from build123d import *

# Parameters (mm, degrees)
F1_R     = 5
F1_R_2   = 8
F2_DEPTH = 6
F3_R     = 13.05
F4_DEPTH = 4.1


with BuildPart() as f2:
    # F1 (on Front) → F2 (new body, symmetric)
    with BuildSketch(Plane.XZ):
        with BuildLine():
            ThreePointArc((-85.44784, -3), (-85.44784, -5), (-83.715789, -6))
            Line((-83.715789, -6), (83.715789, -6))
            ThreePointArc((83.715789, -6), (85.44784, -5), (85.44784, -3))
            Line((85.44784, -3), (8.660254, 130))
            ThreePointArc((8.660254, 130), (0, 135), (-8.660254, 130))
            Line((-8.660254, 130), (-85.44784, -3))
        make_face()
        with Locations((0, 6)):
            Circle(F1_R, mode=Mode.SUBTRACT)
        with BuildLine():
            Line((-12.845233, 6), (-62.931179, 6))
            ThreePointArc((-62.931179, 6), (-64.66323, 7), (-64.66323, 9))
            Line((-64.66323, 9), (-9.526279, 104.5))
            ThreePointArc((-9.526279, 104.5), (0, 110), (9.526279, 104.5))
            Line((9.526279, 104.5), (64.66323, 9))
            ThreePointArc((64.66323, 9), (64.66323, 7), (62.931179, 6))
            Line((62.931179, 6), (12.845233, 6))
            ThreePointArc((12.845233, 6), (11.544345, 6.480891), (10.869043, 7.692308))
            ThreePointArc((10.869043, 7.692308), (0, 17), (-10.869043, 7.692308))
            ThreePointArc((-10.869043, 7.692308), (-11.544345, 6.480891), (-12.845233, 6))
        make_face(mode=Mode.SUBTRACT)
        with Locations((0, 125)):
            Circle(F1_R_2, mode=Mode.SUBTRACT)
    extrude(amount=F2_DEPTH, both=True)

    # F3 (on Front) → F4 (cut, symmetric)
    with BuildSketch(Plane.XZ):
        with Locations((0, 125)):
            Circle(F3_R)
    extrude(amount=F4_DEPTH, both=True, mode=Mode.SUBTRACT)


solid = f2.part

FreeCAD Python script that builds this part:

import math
import FreeCAD as App
import Part
import Sketcher
from FreeCAD import Vector
Q = App.Units.Quantity

doc = App.newDocument("Part")
params = doc.addObject("Spreadsheet::Sheet", "Params")
for row, (alias, value) in enumerate([
    ("sketch1_diameter", "10 mm"),
    ("sketch1_diameter2", "16 mm"),
    ("sketch1_radius", "2 mm"),
    ("sketch1_radius2", "10 mm"),
    ("sketch1_radius3", "10.999999 mm"),
    ("pad1_length", "12 mm"),
    ("sketch2_diameter", "26.1 mm"),
    ("pocket1_length", "8.2 mm"),
], start=1):
    params.set(f"A{row}", alias)
    params.set(f"B{row}", "=" + value)
    params.setAlias(f"B{row}", alias)

body = doc.addObject("PartDesign::Body", "Body")

# Sketch on XZ plane
sketch1 = body.newObject("Sketcher::SketchObject", "Sketch")
sketch1.AttachmentSupport = (doc.getObject("XZ_Plane"), [""])
sketch1.MapMode = "FlatFace"
sketch1.addGeometry(Part.ArcOfCircle(Part.Circle(Vector(-83.7, -4, 0), Vector(0, 0, 1), 2), math.radians(150), math.radians(270)), False)
sketch1.addGeometry(Part.LineSegment(Vector(-83.7, -6, 0), Vector(83.7, -6, 0)), False)
sketch1.addGeometry(Part.ArcOfCircle(Part.Circle(Vector(83.7, -4, 0), Vector(0, 0, 1), 2), math.radians(-90), math.radians(30)), False)
sketch1.addGeometry(Part.LineSegment(Vector(85.4, -3, 0), Vector(8.7, 130, 0)), False)
sketch1.addGeometry(Part.ArcOfCircle(Part.Circle(Vector(0, 125, 0), Vector(0, 0, 1), 10), math.radians(30), math.radians(150)), False)
sketch1.addGeometry(Part.LineSegment(Vector(-8.7, 130, 0), Vector(-85.4, -3, 0)), False)
sketch1.addGeometry(Part.Circle(Vector(0, 6, 0), Vector(0, 0, 1), 5), False)
sketch1.addGeometry(Part.ArcOfCircle(Part.Circle(Vector(-12.8, 8, 0), Vector(0, 0, 1), 2), math.radians(-90), math.radians(-9)), False)
sketch1.addGeometry(Part.LineSegment(Vector(-12.8, 6, 0), Vector(-62.9, 6, 0)), False)
sketch1.addGeometry(Part.ArcOfCircle(Part.Circle(Vector(-62.9, 8, 0), Vector(0, 0, 1), 2), math.radians(150), math.radians(270)), False)
sketch1.addGeometry(Part.LineSegment(Vector(-64.7, 9, 0), Vector(-9.5, 104.5, 0)), False)
sketch1.addGeometry(Part.ArcOfCircle(Part.Circle(Vector(0, 99, 0), Vector(0, 0, 1), 11), math.radians(30), math.radians(150)), False)
sketch1.addGeometry(Part.LineSegment(Vector(9.5, 104.5, 0), Vector(64.7, 9, 0)), False)
sketch1.addGeometry(Part.ArcOfCircle(Part.Circle(Vector(62.9, 8, 0), Vector(0, 0, 1), 2), math.radians(-90), math.radians(30)), False)
sketch1.addGeometry(Part.LineSegment(Vector(62.9, 6, 0), Vector(12.8, 6, 0)), False)
sketch1.addGeometry(Part.ArcOfCircle(Part.Circle(Vector(12.8, 8, 0), Vector(0, 0, 1), 2), math.radians(-171), math.radians(-90)), False)
sketch1.addGeometry(Part.ArcOfCircle(Part.Circle(Vector(0, 6, 0), Vector(0, 0, 1), 11), math.radians(9), math.radians(171)), False)
sketch1.addGeometry(Part.Circle(Vector(0, 125, 0), Vector(0, 0, 1), 8), False)
sketch1.addConstraint(Sketcher.Constraint("Tangent", 0, 2, 1, 1))
sketch1.addConstraint(Sketcher.Constraint("Tangent", 1, 2, 2, 1))
sketch1.addConstraint(Sketcher.Constraint("Tangent", 2, 2, 3, 1))
sketch1.addConstraint(Sketcher.Constraint("Tangent", 3, 2, 4, 1))
sketch1.addConstraint(Sketcher.Constraint("Tangent", 4, 2, 5, 1))
sketch1.addConstraint(Sketcher.Constraint("Tangent", 5, 2, 0, 1))
sketch1.addConstraint(Sketcher.Constraint("Tangent", 7, 1, 8, 1))
sketch1.addConstraint(Sketcher.Constraint("Tangent", 8, 2, 9, 2))
sketch1.addConstraint(Sketcher.Constraint("Tangent", 9, 1, 10, 1))
sketch1.addConstraint(Sketcher.Constraint("Tangent", 10, 2, 11, 2))
sketch1.addConstraint(Sketcher.Constraint("Tangent", 11, 1, 12, 1))
sketch1.addConstraint(Sketcher.Constraint("Tangent", 12, 2, 13, 2))
sketch1.addConstraint(Sketcher.Constraint("Tangent", 13, 1, 14, 1))
sketch1.addConstraint(Sketcher.Constraint("Tangent", 14, 2, 15, 2))
sketch1.addConstraint(Sketcher.Constraint("Tangent", 15, 1, 16, 1))
sketch1.addConstraint(Sketcher.Constraint("Tangent", 16, 2, 7, 2))
sketch1.addConstraint(Sketcher.Constraint("Horizontal", 1))
sketch1.addConstraint(Sketcher.Constraint("Horizontal", 8))
sketch1.addConstraint(Sketcher.Constraint("Horizontal", 14))
sketch1.addConstraint(Sketcher.Constraint("Coincident", 16, 3, 6, 3))
sketch1.addConstraint(Sketcher.Constraint("Coincident", 17, 3, 4, 3))
sketch1.addConstraint(Sketcher.Constraint("Equal", 0, 2))
sketch1.addConstraint(Sketcher.Constraint("Equal", 2, 7))
sketch1.addConstraint(Sketcher.Constraint("Equal", 7, 9))
sketch1.addConstraint(Sketcher.Constraint("Equal", 9, 13))
sketch1.addConstraint(Sketcher.Constraint("Equal", 13, 15))
sketch1.addConstraint(Sketcher.Constraint("Equal", 11, 16))
sketch1.addConstraint(Sketcher.Constraint("Symmetric", 9, 3, 13, 3, -2))
sketch1.addConstraint(Sketcher.Constraint("Symmetric", 3, 2, 4, 2, -2))
sketch1.addConstraint(Sketcher.Constraint("PointOnObject", 6, 3, -2))
sketch1.addConstraint(Sketcher.Constraint("PointOnObject", 11, 3, -2))
sketch1.addConstraint(Sketcher.Constraint("Parallel", 5, 10))
sketch1.addConstraint(Sketcher.Constraint("Horizontal", 16, 3, 7, 1))
sketch1.addConstraint(Sketcher.Constraint("Diameter", 6, 10.0))
sketch1.addConstraint(Sketcher.Constraint("Diameter", 17, 16.0))
sketch1.addConstraint(Sketcher.Constraint("Radius", 0, 2.0))
sketch1.addConstraint(Sketcher.Constraint("Radius", 4, 10.0))
sketch1.addConstraint(Sketcher.Constraint("Radius", 11, 10.999999))
sketch1.addConstraint(Sketcher.Constraint("Angle", 3, Q("120 deg")))
sketch1.addConstraint(Sketcher.Constraint("DistanceY", 0, 3, -1, 1, 4.0))
sketch1.addConstraint(Sketcher.Constraint("DistanceY", -1, 1, 4, 3, 125.0))
sketch1.addConstraint(Sketcher.Constraint("DistanceY", -1, 1, 6, 3, 6.0))
sketch1.addConstraint(Sketcher.Constraint("DistanceY", -1, 1, 11, 3, 99.000001))
sketch1.setExpression("Constraints[33]", "Params.sketch1_diameter")
sketch1.setExpression("Constraints[34]", "Params.sketch1_diameter2")
sketch1.setExpression("Constraints[35]", "Params.sketch1_radius")
sketch1.setExpression("Constraints[36]", "Params.sketch1_radius2")
sketch1.setExpression("Constraints[37]", "Params.sketch1_radius3")
pad1 = body.newObject("PartDesign::Pad", "Pad")
pad1.Profile = sketch1
pad1.setExpression("Length", "Params.pad1_length")
pad1.Midplane = True

# Sketch on XZ plane
sketch2 = body.newObject("Sketcher::SketchObject", "Sketch001")
sketch2.AttachmentSupport = (doc.getObject("XZ_Plane"), [""])
sketch2.MapMode = "FlatFace"
sketch2.addGeometry(Part.Circle(Vector(0, 125, 0), Vector(0, 0, 1), 13), False)
sketch2.addConstraint(Sketcher.Constraint("PointOnObject", 0, 3, -2))
sketch2.addConstraint(Sketcher.Constraint("Diameter", 0, 26.1))
sketch2.addConstraint(Sketcher.Constraint("DistanceY", -1, 1, 0, 3, 125.0))
sketch2.setExpression("Constraints[1]", "Params.sketch2_diameter")
pocket1 = body.newObject("PartDesign::Pocket", "Pocket")
pocket1.Profile = sketch2
pocket1.setExpression("Length", "Params.pocket1_length")
pocket1.Midplane = True

doc.recompute()
